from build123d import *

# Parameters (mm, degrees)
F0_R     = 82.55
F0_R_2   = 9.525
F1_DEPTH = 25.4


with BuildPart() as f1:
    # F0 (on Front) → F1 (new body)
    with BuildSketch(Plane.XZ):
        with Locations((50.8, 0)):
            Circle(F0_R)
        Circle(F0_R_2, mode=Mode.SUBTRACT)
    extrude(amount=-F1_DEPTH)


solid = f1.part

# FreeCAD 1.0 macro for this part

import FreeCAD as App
import Part
import Sketcher
Q = App.Units.Quantity

doc = App.newDocument("Part")
body = doc.addObject("PartDesign::Body", "Body")

# Sketch on XZ plane
sketch1 = body.newObject("Sketcher::SketchObject", "Sketch")
sketch1.AttachmentSupport = (doc.getObject("XZ_Plane"), [""])
sketch1.MapMode = "FlatFace"
sketch1.addGeometry(Part.Circle(App.Vector(51, 0, 0), App.Vector(0, 0, 1), 83), False)
sketch1.addGeometry(Part.Circle(App.Vector(0, 0, 0), App.Vector(0, 0, 1), 10), False)
sketch1.addConstraint(Sketcher.Constraint("Coincident", 1, 3, -1, 1))
sketch1.addConstraint(Sketcher.Constraint("PointOnObject", 0, 3, -1))
sketch1.addConstraint(Sketcher.Constraint("Diameter", 0, Q("6.5 in")))
sketch1.addConstraint(Sketcher.Constraint("Diameter", 1, Q("0.75 in")))
sketch1.addConstraint(Sketcher.Constraint("DistanceX", -1, 1, 0, 3, Q("2 in")))
pad1 = body.newObject("PartDesign::Pad", "Pad")
pad1.Profile = sketch1
pad1.Length = Q("1 in")
pad1.Reversed = True

doc.recompute()
